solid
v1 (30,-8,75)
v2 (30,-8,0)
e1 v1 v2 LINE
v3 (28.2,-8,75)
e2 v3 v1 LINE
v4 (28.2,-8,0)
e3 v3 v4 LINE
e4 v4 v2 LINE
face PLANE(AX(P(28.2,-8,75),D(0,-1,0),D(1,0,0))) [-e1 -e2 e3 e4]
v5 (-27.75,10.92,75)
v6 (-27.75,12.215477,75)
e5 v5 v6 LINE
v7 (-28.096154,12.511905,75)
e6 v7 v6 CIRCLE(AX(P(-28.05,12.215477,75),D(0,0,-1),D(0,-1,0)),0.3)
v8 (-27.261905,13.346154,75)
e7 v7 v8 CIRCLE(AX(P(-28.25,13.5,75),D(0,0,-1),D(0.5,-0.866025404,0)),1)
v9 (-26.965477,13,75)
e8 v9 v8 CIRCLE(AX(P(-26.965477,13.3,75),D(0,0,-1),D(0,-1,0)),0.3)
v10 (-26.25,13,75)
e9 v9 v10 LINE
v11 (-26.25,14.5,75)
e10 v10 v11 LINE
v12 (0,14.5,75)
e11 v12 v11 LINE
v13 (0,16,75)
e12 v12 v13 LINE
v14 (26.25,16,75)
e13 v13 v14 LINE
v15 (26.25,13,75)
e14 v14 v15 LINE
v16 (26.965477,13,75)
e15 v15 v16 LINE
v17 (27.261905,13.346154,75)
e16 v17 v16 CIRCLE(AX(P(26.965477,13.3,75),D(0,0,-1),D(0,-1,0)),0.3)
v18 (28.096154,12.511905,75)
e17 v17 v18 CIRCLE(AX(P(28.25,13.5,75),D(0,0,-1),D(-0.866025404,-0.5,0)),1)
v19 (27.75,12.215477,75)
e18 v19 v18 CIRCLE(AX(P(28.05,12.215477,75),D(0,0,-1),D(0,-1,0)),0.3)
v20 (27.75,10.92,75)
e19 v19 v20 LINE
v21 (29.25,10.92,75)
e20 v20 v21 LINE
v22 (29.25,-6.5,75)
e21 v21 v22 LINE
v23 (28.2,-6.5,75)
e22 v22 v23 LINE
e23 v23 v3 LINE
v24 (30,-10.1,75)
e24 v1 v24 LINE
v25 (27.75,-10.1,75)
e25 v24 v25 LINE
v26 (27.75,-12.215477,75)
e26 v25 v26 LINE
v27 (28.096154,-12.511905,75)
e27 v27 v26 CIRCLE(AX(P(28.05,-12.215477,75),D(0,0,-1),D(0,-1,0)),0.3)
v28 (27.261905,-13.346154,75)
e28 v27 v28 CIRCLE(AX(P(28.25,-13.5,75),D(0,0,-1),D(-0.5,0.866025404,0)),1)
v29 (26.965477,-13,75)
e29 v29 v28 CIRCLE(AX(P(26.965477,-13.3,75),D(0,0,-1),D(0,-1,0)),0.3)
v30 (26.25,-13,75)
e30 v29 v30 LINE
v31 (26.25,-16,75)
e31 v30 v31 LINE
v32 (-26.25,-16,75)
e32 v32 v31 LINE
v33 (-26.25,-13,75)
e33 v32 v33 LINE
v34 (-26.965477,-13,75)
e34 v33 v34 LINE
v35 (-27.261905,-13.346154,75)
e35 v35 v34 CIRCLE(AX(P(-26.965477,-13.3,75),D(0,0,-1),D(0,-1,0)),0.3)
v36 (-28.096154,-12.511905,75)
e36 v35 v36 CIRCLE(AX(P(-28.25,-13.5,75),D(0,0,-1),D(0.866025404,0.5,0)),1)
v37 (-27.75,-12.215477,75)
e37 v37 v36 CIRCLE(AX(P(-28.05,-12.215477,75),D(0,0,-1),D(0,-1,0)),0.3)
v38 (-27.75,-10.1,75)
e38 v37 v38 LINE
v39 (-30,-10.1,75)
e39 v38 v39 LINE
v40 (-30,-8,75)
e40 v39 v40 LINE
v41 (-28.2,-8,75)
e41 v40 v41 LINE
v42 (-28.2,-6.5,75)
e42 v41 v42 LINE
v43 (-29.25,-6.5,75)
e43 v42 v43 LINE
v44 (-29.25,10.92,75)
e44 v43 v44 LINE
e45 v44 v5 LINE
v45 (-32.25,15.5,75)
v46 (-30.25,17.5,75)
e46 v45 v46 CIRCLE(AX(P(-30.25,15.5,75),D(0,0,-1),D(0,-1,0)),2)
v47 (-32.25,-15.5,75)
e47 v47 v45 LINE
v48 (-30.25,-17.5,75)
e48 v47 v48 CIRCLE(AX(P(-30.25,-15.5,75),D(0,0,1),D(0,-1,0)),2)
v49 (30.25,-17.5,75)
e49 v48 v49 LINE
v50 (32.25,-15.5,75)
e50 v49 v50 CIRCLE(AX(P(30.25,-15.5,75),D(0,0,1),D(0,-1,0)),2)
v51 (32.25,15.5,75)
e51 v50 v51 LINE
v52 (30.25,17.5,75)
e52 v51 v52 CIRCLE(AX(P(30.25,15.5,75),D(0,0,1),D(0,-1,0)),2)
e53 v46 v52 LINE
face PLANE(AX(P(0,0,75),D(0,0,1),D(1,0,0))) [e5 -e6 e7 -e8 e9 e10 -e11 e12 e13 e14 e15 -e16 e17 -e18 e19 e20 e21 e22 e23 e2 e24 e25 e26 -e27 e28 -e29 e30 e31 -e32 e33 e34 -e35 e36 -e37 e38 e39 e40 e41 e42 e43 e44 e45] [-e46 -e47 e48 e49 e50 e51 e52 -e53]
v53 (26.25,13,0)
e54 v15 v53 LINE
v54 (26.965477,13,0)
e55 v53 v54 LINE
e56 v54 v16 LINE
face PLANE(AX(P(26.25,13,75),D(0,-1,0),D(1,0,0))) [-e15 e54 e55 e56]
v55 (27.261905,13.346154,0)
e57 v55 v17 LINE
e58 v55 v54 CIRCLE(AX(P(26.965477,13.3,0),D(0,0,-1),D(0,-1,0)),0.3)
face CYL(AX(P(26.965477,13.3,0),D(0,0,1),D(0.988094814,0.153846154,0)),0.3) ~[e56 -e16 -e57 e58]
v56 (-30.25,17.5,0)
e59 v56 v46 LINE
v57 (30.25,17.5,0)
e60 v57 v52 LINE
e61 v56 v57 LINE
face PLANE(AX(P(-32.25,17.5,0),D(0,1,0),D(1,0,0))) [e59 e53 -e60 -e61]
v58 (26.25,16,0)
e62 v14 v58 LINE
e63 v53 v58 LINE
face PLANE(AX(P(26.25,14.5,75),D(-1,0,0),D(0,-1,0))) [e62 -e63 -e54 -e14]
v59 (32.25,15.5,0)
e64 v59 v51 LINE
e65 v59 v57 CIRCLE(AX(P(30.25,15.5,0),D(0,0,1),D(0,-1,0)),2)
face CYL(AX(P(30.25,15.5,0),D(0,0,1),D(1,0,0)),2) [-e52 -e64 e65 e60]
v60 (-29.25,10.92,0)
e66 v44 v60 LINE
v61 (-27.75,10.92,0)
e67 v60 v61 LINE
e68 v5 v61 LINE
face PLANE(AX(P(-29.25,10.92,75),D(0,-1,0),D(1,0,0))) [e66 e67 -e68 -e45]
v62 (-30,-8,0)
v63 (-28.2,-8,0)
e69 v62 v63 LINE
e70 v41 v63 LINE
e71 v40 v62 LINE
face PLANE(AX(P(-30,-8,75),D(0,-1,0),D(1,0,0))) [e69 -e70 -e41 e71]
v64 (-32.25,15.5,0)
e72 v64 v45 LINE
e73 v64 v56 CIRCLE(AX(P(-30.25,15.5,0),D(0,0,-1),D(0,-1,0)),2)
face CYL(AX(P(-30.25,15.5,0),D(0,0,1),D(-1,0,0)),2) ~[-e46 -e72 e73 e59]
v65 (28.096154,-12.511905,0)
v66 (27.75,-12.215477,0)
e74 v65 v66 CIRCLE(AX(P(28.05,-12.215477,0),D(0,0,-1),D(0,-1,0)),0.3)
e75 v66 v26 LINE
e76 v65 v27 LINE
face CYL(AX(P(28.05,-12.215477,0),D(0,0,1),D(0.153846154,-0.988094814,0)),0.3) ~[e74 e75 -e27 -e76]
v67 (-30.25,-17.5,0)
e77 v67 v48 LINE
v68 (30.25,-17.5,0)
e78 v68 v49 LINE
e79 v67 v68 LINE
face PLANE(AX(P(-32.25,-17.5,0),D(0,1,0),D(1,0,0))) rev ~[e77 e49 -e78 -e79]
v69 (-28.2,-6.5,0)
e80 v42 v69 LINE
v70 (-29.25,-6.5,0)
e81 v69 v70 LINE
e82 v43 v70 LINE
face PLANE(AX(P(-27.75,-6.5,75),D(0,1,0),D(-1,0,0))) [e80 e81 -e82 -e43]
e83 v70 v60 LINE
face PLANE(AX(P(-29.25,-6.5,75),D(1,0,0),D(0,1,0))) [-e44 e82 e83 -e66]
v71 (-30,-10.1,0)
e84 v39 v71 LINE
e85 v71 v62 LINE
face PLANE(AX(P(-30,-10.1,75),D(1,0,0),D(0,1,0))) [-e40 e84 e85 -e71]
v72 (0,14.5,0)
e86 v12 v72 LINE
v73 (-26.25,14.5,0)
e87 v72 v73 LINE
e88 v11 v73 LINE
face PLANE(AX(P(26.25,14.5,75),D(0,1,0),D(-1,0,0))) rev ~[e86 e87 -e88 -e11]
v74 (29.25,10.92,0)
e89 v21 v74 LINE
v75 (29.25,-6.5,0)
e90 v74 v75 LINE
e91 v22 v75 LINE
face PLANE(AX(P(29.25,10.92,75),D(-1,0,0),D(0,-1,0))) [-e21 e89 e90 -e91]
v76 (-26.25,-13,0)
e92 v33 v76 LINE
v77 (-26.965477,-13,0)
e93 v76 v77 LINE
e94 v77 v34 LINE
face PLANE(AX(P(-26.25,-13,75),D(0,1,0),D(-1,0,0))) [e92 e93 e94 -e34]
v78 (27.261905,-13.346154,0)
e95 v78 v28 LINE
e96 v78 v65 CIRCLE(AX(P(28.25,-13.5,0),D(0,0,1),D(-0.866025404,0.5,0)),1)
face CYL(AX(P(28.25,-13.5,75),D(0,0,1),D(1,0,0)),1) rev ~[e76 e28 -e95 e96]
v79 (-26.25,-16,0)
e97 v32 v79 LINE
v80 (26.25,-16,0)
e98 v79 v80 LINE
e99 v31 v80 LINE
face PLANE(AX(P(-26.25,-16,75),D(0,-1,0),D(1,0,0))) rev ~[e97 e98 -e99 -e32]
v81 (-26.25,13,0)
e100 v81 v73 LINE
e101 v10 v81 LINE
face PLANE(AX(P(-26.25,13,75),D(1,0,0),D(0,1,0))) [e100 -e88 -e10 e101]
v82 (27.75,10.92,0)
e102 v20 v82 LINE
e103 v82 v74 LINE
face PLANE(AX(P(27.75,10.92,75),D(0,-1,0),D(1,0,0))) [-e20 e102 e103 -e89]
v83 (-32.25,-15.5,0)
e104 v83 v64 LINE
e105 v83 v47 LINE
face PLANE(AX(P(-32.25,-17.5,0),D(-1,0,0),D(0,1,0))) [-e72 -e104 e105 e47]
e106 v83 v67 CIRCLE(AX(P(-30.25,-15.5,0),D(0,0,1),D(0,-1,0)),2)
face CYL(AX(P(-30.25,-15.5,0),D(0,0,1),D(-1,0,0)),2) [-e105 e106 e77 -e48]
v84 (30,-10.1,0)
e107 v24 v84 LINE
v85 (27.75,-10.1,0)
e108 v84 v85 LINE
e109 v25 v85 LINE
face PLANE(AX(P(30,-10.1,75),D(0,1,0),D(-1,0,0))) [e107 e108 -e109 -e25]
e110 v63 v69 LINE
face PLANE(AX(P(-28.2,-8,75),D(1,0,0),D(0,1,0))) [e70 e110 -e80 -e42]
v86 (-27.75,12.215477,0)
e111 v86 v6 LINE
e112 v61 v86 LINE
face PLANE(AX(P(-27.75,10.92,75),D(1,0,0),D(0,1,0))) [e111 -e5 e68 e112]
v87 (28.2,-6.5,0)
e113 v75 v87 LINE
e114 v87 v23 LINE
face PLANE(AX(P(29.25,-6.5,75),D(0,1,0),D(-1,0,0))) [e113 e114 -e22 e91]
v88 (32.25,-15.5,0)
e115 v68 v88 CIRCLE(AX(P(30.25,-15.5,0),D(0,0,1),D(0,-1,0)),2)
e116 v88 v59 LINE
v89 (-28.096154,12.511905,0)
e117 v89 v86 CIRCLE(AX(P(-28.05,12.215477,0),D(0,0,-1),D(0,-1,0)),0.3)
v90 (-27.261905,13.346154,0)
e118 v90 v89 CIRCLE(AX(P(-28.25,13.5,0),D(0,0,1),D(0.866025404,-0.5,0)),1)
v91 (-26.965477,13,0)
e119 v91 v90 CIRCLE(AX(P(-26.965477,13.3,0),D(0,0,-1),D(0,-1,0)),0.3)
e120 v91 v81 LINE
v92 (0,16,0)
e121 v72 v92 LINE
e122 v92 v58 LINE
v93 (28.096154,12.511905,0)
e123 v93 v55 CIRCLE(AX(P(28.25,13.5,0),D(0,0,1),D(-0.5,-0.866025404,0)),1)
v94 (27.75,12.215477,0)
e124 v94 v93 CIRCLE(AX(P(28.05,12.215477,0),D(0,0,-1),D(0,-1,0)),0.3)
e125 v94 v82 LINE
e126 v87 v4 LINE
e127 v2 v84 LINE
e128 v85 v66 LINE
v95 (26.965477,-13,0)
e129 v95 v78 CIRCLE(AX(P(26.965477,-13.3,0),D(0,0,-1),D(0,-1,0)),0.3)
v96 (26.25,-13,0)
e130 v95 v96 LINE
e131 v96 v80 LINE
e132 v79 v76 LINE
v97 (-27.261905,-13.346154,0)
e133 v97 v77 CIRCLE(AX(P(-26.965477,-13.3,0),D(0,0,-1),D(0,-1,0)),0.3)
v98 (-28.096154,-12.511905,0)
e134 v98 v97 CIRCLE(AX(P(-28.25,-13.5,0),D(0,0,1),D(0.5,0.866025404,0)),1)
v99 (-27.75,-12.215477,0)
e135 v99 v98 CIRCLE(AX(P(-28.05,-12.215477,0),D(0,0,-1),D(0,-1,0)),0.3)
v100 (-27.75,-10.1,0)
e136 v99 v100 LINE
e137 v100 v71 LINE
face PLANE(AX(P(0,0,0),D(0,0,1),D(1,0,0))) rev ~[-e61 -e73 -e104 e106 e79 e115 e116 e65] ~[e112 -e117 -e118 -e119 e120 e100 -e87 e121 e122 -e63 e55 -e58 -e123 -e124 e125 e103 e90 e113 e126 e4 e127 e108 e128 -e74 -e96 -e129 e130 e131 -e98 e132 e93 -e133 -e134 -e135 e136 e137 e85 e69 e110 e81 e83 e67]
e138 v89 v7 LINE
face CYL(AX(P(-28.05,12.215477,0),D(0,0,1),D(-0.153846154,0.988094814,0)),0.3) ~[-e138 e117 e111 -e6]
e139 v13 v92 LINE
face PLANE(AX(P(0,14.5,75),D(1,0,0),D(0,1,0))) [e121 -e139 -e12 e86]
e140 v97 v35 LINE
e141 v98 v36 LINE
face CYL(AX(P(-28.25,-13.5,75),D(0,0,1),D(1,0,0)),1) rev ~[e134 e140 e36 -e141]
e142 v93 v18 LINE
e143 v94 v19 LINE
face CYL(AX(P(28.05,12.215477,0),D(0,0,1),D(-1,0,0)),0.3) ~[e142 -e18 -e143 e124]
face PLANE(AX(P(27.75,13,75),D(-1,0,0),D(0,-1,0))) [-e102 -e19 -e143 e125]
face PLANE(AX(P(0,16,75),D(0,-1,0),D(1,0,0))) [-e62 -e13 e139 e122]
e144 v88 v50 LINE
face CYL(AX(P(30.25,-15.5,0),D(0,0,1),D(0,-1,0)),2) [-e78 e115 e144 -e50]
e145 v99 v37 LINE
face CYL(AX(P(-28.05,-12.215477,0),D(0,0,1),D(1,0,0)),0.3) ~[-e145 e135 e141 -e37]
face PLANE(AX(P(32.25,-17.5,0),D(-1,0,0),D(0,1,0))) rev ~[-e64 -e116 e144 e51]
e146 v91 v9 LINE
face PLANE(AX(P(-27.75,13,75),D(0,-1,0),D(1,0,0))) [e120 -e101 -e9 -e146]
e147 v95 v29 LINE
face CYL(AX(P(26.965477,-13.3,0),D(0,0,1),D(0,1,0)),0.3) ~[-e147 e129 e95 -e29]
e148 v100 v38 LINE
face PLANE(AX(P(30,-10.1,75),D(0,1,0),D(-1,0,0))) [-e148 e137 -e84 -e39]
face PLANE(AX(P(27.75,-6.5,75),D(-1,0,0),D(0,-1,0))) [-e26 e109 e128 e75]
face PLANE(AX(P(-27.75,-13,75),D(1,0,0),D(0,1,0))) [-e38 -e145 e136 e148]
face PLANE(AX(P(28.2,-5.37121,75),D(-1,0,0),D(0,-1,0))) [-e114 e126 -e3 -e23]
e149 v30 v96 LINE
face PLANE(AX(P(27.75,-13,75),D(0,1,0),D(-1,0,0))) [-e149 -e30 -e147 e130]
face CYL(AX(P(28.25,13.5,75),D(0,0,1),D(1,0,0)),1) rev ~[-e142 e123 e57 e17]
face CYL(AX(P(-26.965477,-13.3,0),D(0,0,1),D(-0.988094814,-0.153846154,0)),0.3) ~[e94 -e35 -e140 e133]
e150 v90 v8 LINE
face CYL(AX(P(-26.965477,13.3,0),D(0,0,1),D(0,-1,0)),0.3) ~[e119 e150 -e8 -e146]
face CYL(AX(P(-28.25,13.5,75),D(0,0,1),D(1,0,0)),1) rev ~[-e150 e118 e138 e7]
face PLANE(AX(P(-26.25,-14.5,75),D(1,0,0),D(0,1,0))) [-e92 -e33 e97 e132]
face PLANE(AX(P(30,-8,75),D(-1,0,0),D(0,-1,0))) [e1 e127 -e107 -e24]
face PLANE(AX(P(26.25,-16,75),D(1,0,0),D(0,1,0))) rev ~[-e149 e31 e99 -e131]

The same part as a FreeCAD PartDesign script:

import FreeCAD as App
import Part
import Sketcher

V = App.Vector


def edges_at(feature, points):
    """Names of the edges that pass closest to the given points."""
    edges = feature.Shape.Edges
    near = lambda p: min(range(len(edges)), key=lambda i: edges[i].distToShape(Part.Vertex(*p))[0])
    return sorted({f"Edge{near(p) + 1}" for p in points})


def add_polygon(sketch, points):
    """Adds a closed chain of lines whose ends are joined by coincident constraints."""
    first, n = sketch.GeometryCount, len(points)
    for a, b in zip(points, points[1:] + points[:1]):
        sketch.addGeometry(Part.LineSegment(App.Vector(*a, 0), App.Vector(*b, 0)), False)
    for i in range(n):
        sketch.addConstraint(Sketcher.Constraint("Coincident", first + i, 2, first + (i + 1) % n, 1))

doc = App.newDocument("Part")
body = doc.addObject("PartDesign::Body", "Body")

# Sketch on XY plane
sketch1 = body.newObject("Sketcher::SketchObject", "Sketch")
sketch1.AttachmentSupport = (doc.getObject("XY_Plane"), [""])
sketch1.MapMode = "FlatFace"
add_polygon(sketch1, [(-32, 18), (-32, -18), (32, -18), (32, 18)])  # lines 0-3
sketch1.addConstraint([
    Sketcher.Constraint("Vertical", 0),
    Sketcher.Constraint("Horizontal", 1),
    Sketcher.Constraint("Vertical", 2),
    Sketcher.Constraint("Horizontal", 3),
    Sketcher.Constraint("Symmetric", 0, 2, 2, 2, -1, 1),
    Sketcher.Constraint("DistanceY", 0, 2, 0, 1, 35.0),
    Sketcher.Constraint("DistanceX", 1, 1, 1, 2, 64.5),
])
pad1 = body.newObject("PartDesign::Pad", "Pad")
pad1.Profile = sketch1
pad1.Length = 75
doc.recompute()

fillet = body.newObject("PartDesign::Fillet", "Fillet")
fillet.Base = (pad1, edges_at(pad1, [
    (32.25, -17.5, 37.5),
    (-32.25, -17.5, 37.5),
    (-32.25, 17.5, 37.5),
    (32.25, 17.5, 37.5),
]))
fillet.Radius = 2

# Sketch on XY plane
sketch2 = body.newObject("Sketcher::SketchObject", "Sketch001")
sketch2.AttachmentSupport = (doc.getObject("XY_Plane"), [""])
sketch2.MapMode = "FlatFace"
sketch2.AttachmentOffset = App.Placement(V(0, 0, 75), App.Rotation())
sketch2.addGeometry([
    Part.Circle(V(-28.2, 13.5, 0), V(0, 0, 1), 1),
    Part.Circle(V(-28.2, -13.5, 0), V(0, 0, 1), 1),
    Part.Circle(V(28.2, -13.5, 0), V(0, 0, 1), 1),
    Part.Circle(V(28.2, 13.5, 0), V(0, 0, 1), 1),
], False)
sketch2.addConstraint([
    Sketcher.Constraint("Equal", 0, 1),
    Sketcher.Constraint("Equal", 1, 2),
    Sketcher.Constraint("Equal", 2, 3),
    Sketcher.Constraint("Symmetric", 0, 3, 2, 3, -1, 1),
    Sketcher.Constraint("Symmetric", 1, 3, 3, 3, -1, 1),
    Sketcher.Constraint("Symmetric", 1, 3, 2, 3, -2),
    Sketcher.Constraint("Diameter", 0, 2.0),
    Sketcher.Constraint("DistanceY", 1, 3, 0, 3, 27.0),
    Sketcher.Constraint("DistanceX", 1, 3, 2, 3, 56.5),
])
pocket1 = body.newObject("PartDesign::Pocket", "Pocket")
pocket1.Profile = sketch2
pocket1.Type = "ThroughAll"

# Sketch on XY plane
sketch3 = body.newObject("Sketcher::SketchObject", "Sketch002")
sketch3.AttachmentSupport = (doc.getObject("XY_Plane"), [""])
sketch3.MapMode = "FlatFace"
sketch3.AttachmentOffset = App.Placement(V(0, 0, 75), App.Rotation())
add_polygon(sketch3, [(-27.8, 13), (-27.8, 10.9), (-29.2, 10.9), (-29.2, -6.5), (-27.8, -6.5), (-27.8, -13), (-26.2, -13), (-26.2, -14.5), (26.2, -14.5), (26.2, -13), (27.8, -13), (27.8, -6.5), (29.2, -6.5), (29.2, 10.9), (27.8, 10.9), (27.8, 13), (26.2, 13), (26.2, 14.5), (-26.2, 14.5), (-26.2, 13)])  # lines 0-19
sketch3.addConstraint([
    Sketcher.Constraint("Vertical", 0),
    Sketcher.Constraint("Horizontal", 1),
    Sketcher.Constraint("Vertical", 2),
    Sketcher.Constraint("Horizontal", 3),
    Sketcher.Constraint("Vertical", 4),
    Sketcher.Constraint("Horizontal", 5),
    Sketcher.Constraint("Vertical", 6),
    Sketcher.Constraint("Horizontal", 7),
    Sketcher.Constraint("Vertical", 8),
    Sketcher.Constraint("Horizontal", 9),
    Sketcher.Constraint("Vertical", 10),
    Sketcher.Constraint("Horizontal", 11),
    Sketcher.Constraint("Vertical", 12),
    Sketcher.Constraint("Horizontal", 13),
    Sketcher.Constraint("Vertical", 14),
    Sketcher.Constraint("Horizontal", 15),
    Sketcher.Constraint("Vertical", 16),
    Sketcher.Constraint("Horizontal", 17),
    Sketcher.Constraint("Vertical", 18),
    Sketcher.Constraint("Horizontal", 19),
    Sketcher.Constraint("Symmetric", 4, 2, 14, 2, -1, 1),
    Sketcher.Constraint("Symmetric", 6, 2, 16, 2, -1, 1),
    Sketcher.Constraint("Symmetric", 8, 2, 18, 2, -1, 1),
    Sketcher.Constraint("Symmetric", 5, 2, 8, 2, -2),
    Sketcher.Constraint("Symmetric", 3, 2, 10, 2, -2),
    Sketcher.Constraint("Symmetric", 1, 2, 12, 2, -2),
    Sketcher.Constraint("Vertical", 0, 2, 3, 2),
    Sketcher.Constraint("Equal", 3, 5),
    Sketcher.Constraint("Equal", 19, 6),
    Sketcher.Constraint("DistanceX", 1, 2, 1, 1, 1.5),
    Sketcher.Constraint("DistanceX", 7, 1, 7, 2, 52.5),
    Sketcher.Constraint("DistanceY", 4, 2, 4, 1, 6.5),
    Sketcher.Constraint("DistanceY", 4, 2, -1, 1, 13.0),
    Sketcher.Constraint("DistanceY", 0, 2, 0, 1, 2.08),
])
pocket2 = body.newObject("PartDesign::Pocket", "Pocket001")
pocket2.Profile = sketch3
pocket2.Length = 75

# Sketch on XY plane
sketch4 = body.newObject("Sketcher::SketchObject", "Sketch003")
sketch4.AttachmentSupport = (doc.getObject("XY_Plane"), [""])
sketch4.MapMode = "FlatFace"
sketch4.AttachmentOffset = App.Placement(V(0, 0, 75), App.Rotation())
add_polygon(sketch4, [(-28.2, -8), (-30, -8), (-30, -10.1), (30, -10.1), (30, -8), (28.2, -8), (28.2, -5.4), (-28.2, -5)])  # lines 0-7
sketch4.addConstraint([
    Sketcher.Constraint("Horizontal", 0),
    Sketcher.Constraint("Vertical", 1),
    Sketcher.Constraint("Horizontal", 2),
    Sketcher.Constraint("Vertical", 3),
    Sketcher.Constraint("Horizontal", 4),
    Sketcher.Constraint("Vertical", 5),
    Sketcher.Constraint("Vertical", 7),
    Sketcher.Constraint("Symmetric", 0, 2, 3, 2, -2),
    Sketcher.Constraint("Equal", 0, 4),
    Sketcher.Constraint("DistanceX", 2, 1, 2, 2, 60.0),
    Sketcher.Constraint("DistanceX", 0, 2, 0, 1, 1.8),
    Sketcher.Constraint("DistanceY", 1, 2, 1, 1, 2.1),
    Sketcher.Constraint("DistanceY", 0, 2, -1, 1, 8.0),
    Sketcher.Constraint("DistanceY", 5, 1, 5, 2, 2.62879),
    Sketcher.Constraint("DistanceY", 7, 2, 7, 1, 3.009363),
])
pocket3 = body.newObject("PartDesign::Pocket", "Pocket002")
pocket3.Profile = sketch4
pocket3.Length = 75

# Sketch on XY plane
sketch5 = body.newObject("Sketcher::SketchObject", "Sketch004")
sketch5.AttachmentSupport = (doc.getObject("XY_Plane"), [""])
sketch5.MapMode = "FlatFace"
sketch5.AttachmentOffset = App.Placement(V(0, 0, 75), App.Rotation())
add_polygon(sketch5, [(0, 16), (0, 14.5), (26.2, 14.5), (26.2, 16)])  # lines 0-3
sketch5.addConstraint([
    Sketcher.Constraint("Vertical", 0),
    Sketcher.Constraint("Horizontal", 1),
    Sketcher.Constraint("Vertical", 2),
    Sketcher.Constraint("Horizontal", 3),
    Sketcher.Constraint("PointOnObject", 0, 2, -2),
    Sketcher.Constraint("DistanceY", 0, 2, 0, 1, 1.5),
    Sketcher.Constraint("DistanceY", -1, 1, 2, 2, 16.0),
    Sketcher.Constraint("DistanceX", 1, 1, 1, 2, 26.25),
])
pocket4 = body.newObject("PartDesign::Pocket", "Pocket003")
pocket4.Profile = sketch5
pocket4.Length = 75
doc.recompute()

fillet2 = body.newObject("PartDesign::Fillet", "Fillet001")
fillet2.Base = (pocket4, edges_at(pocket4, [
    (27.75, 12.634, 37.5),
    (27.384, 13, 37.5),
    (27.384, -13, 37.5),
    (27.75, -12.634, 37.5),
    (-27.75, -12.634, 37.5),
    (-27.384, -13, 37.5),
    (-27.384, 13, 37.5),
    (-27.75, 12.634, 37.5),
]))
fillet2.Radius = 0.3

# Sketch on XY plane
sketch6 = body.newObject("Sketcher::SketchObject", "Sketch005")
sketch6.AttachmentSupport = (doc.getObject("XY_Plane"), [""])
sketch6.MapMode = "FlatFace"
sketch6.AttachmentOffset = App.Placement(V(0, 0, 75), App.Rotation())
add_polygon(sketch6, [(-26.2, -14.5), (-26.2, -16), (26.2, -16), (26.2, -14.5)])  # lines 0-3
sketch6.addConstraint([
    Sketcher.Constraint("Vertical", 0),
    Sketcher.Constraint("Horizontal", 1),
    Sketcher.Constraint("Vertical", 2),
    Sketcher.Constraint("Horizontal", 3),
    Sketcher.Constraint("DistanceX", 1, 1, 1, 2, 52.5),
    Sketcher.Constraint("DistanceY", 0, 2, 0, 1, 1.5),
    Sketcher.Constraint("DistanceY", 0, 2, -1, 1, 16.0),
    Sketcher.Constraint("DistanceX", 0, 2, -1, 1, 26.25),
])
pocket5 = body.newObject("PartDesign::Pocket", "Pocket004")
pocket5.Profile = sketch6
pocket5.Type = "ThroughAll"

doc.recompute()
